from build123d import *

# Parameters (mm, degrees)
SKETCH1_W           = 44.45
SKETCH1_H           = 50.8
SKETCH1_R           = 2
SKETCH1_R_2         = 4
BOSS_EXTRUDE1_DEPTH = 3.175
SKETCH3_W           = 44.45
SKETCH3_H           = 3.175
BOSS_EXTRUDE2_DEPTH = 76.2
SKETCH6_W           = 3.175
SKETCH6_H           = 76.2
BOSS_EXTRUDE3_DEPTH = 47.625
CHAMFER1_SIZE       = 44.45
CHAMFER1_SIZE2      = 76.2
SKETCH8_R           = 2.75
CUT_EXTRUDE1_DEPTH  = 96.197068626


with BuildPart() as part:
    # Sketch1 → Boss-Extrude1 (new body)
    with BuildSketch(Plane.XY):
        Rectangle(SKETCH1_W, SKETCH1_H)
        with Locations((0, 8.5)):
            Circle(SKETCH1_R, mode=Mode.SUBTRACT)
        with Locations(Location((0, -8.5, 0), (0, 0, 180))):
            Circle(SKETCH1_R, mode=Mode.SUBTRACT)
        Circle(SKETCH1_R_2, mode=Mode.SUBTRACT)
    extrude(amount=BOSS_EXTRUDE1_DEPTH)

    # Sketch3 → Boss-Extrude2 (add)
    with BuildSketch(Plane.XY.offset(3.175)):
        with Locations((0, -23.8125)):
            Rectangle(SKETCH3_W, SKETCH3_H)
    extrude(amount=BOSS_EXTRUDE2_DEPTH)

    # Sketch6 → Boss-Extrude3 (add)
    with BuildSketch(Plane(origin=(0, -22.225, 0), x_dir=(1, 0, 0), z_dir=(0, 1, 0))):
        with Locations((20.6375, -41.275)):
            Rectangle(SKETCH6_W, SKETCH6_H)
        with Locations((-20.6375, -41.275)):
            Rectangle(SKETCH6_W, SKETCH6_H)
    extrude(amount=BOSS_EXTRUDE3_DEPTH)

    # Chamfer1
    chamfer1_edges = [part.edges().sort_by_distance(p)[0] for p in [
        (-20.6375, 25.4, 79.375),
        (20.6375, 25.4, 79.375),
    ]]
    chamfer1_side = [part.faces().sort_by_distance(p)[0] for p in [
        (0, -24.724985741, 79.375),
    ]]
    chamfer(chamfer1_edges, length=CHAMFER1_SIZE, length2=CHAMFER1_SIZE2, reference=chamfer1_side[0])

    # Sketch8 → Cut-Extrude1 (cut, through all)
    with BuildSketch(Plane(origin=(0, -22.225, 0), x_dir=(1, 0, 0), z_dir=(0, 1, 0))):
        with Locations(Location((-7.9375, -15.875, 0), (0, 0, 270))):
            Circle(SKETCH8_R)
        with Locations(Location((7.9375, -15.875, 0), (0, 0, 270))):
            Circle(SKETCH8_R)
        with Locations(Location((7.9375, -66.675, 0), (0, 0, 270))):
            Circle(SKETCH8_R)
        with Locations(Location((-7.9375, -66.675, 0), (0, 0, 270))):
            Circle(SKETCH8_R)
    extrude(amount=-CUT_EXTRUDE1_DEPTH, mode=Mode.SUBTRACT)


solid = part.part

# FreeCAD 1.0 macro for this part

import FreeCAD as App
import Part
import Sketcher

V = App.Vector
Q = App.Units.Quantity


def edges_at(feature, points):
    """Names of the edges that pass closest to the given points."""
    edges = feature.Shape.Edges
    near = lambda p: min(range(len(edges)), key=lambda i: edges[i].distToShape(Part.Vertex(*p))[0])
    return sorted({f"Edge{near(p) + 1}" for p in points})


def add_polygon(sketch, points):
    """Adds a closed chain of lines whose ends are joined by coincident constraints."""
    first, n = sketch.GeometryCount, len(points)
    for a, b in zip(points, points[1:] + points[:1]):
        sketch.addGeometry(Part.LineSegment(App.Vector(*a, 0), App.Vector(*b, 0)), False)
    for i in range(n):
        sketch.addConstraint(Sketcher.Constraint("Coincident", first + i, 2, first + (i + 1) % n, 1))

doc = App.newDocument("Part")
body = doc.addObject("PartDesign::Body", "Body")

# Sketch on XY plane
sketch1 = body.newObject("Sketcher::SketchObject", "Sketch")
sketch1.AttachmentSupport = (doc.getObject("XY_Plane"), [""])
sketch1.MapMode = "FlatFace"
add_polygon(sketch1, [(-22.2, 25.4), (-22.2, -25.4), (22.2, -25.4), (22.2, 25.4)])  # lines 0-3
sketch1.addGeometry(Part.Circle(V(0, -8.5, 0), V(0, 0, 1), 2), False)  # 4
sketch1.addGeometry(Part.Circle(V(0, 0, 0), V(0, 0, 1), 4), False)  # 5
sketch1.addGeometry(Part.Circle(V(0, 8.5, 0), V(0, 0, 1), 2), False)  # 6
sketch1.addConstraint([
    Sketcher.Constraint("Vertical", 0),
    Sketcher.Constraint("Horizontal", 1),
    Sketcher.Constraint("Vertical", 2),
    Sketcher.Constraint("Horizontal", 3),
    Sketcher.Constraint("Coincident", 5, 3, -1, 1),
    Sketcher.Constraint("Equal", 4, 6),
    Sketcher.Constraint("Symmetric", 4, 3, 6, 3, -1, 1),
    Sketcher.Constraint("Symmetric", 0, 2, 2, 2, -1, 1),
    Sketcher.Constraint("PointOnObject", 4, 3, -2),
    Sketcher.Constraint("DistanceY", 0, 2, 0, 1, Q("2 in")),
    Sketcher.Constraint("DistanceX", 1, 1, 1, 2, Q("1.75 in")),
    Sketcher.Constraint("Diameter", 4, Q("4 mm")),
    Sketcher.Constraint("Diameter", 5, Q("8 mm")),
    Sketcher.Constraint("DistanceY", 4, 3, -1, 1, Q("8.5 mm")),
])
pad1 = body.newObject("PartDesign::Pad", "Pad")
pad1.Profile = sketch1
pad1.Length = Q("0.125 in")

# Sketch on XY plane
sketch2 = body.newObject("Sketcher::SketchObject", "Sketch001")
sketch2.AttachmentSupport = (doc.getObject("XY_Plane"), [""])
sketch2.MapMode = "FlatFace"
sketch2.AttachmentOffset = App.Placement(V(0, 0, 0.125 * 25.4), App.Rotation())
add_polygon(sketch2, [(-22.2, -22.2), (-22.2, -25.4), (22.2, -25.4), (22.2, -22.2)])  # lines 0-3
sketch2.addConstraint([
    Sketcher.Constraint("Vertical", 0),
    Sketcher.Constraint("Horizontal", 1),
    Sketcher.Constraint("Vertical", 2),
    Sketcher.Constraint("Horizontal", 3),
    Sketcher.Constraint("DistanceY", 0, 2, -1, 1, Q("1 in")),
    Sketcher.Constraint("DistanceX", 1, 1, 1, 2, Q("1.75 in")),
    Sketcher.Constraint("DistanceY", 0, 2, 0, 1, Q("0.125 in")),
    Sketcher.Constraint("DistanceX", 0, 2, -1, 1, Q("0.875 in")),
])
pad2 = body.newObject("PartDesign::Pad", "Pad001")
pad2.Profile = sketch2
pad2.Length = Q("3 in")

# Sketch on XZ plane
sketch3 = body.newObject("Sketcher::SketchObject", "Sketch002")
sketch3.AttachmentSupport = (doc.getObject("XZ_Plane"), [""])
sketch3.MapMode = "FlatFace"
sketch3.AttachmentOffset = App.Placement(V(0, 0, 0.875 * 25.4), App.Rotation())
add_polygon(sketch3, [(19.1, 3.2), (19.1, 79.4), (22.2, 79.4), (22.2, 3.2)])  # lines 0-3
add_polygon(sketch3, [(-22.2, 3.2), (-22.2, 79.4), (-19.1, 79.4), (-19.1, 3.2)])  # lines 4-7
sketch3.addConstraint([
    Sketcher.Constraint("Vertical", 0),
    Sketcher.Constraint("Horizontal", 1),
    Sketcher.Constraint("Vertical", 2),
    Sketcher.Constraint("Horizontal", 3),
    Sketcher.Constraint("Vertical", 4),
    Sketcher.Constraint("Horizontal", 5),
    Sketcher.Constraint("Vertical", 6),
    Sketcher.Constraint("Horizontal", 7),
    Sketcher.Constraint("Symmetric", 1, 2, 4, 2, -2),
    Sketcher.Constraint("Symmetric", 3, 2, 6, 2, -2),
    Sketcher.Constraint("DistanceY", 0, 1, 0, 2, Q("3 in")),
    Sketcher.Constraint("DistanceX", 5, 2, 0, 2, Q("1.5 in")),
    Sketcher.Constraint("DistanceX", 1, 1, 1, 2, Q("0.125 in")),
    Sketcher.Constraint("DistanceY", -1, 1, 0, 2, Q("3.125 in")),
])
pad3 = body.newObject("PartDesign::Pad", "Pad002")
pad3.Profile = sketch3
pad3.Length = Q("1.875 in")
pad3.Reversed = True
doc.recompute()

chamfer = body.newObject("PartDesign::Chamfer", "Chamfer")
chamfer.Base = (pad3, edges_at(pad3, [(-20.637, 25.4, 79.375), (20.637, 25.4, 79.375)]))
chamfer.ChamferType = "Two distances"
chamfer.Size = Q("1.75 in")
chamfer.Size2 = Q("3 in")
chamfer.FlipDirection = True

# Sketch on XZ plane
sketch4 = body.newObject("Sketcher::SketchObject", "Sketch003")
sketch4.AttachmentSupport = (doc.getObject("XZ_Plane"), [""])
sketch4.MapMode = "FlatFace"
sketch4.AttachmentOffset = App.Placement(V(0, 0, 0.875 * 25.4), App.Rotation())
sketch4.addGeometry([
    Part.Circle(V(-7.9, 15.9, 0), V(0, 0, 1), 2.8),
    Part.Circle(V(7.9, 15.9, 0), V(0, 0, 1), 2.8),
    Part.Circle(V(7.9, 66.7, 0), V(0, 0, 1), 2.8),
    Part.Circle(V(-7.9, 66.7, 0), V(0, 0, 1), 2.8),
], False)
sketch4.addConstraint([
    Sketcher.Constraint("Equal", 0, 1),
    Sketcher.Constraint("Equal", 1, 2),
    Sketcher.Constraint("Equal", 2, 3),
    Sketcher.Constraint("Symmetric", 0, 3, 1, 3, -2),
    Sketcher.Constraint("Symmetric", 2, 3, 3, 3, -2),
    Sketcher.Constraint("Vertical", 1, 3, 2, 3),
    Sketcher.Constraint("DistanceY", 1, 3, 2, 3, Q("2 in")),
    Sketcher.Constraint("Diameter", 0, Q("5.5 mm")),
    Sketcher.Constraint("DistanceX", 0, 3, -1, 1, Q("0.3125 in")),
    Sketcher.Constraint("DistanceY", -1, 1, 0, 3, Q("0.625 in")),
])
pocket1 = body.newObject("PartDesign::Pocket", "Pocket")
pocket1.Profile = sketch4
pocket1.Type = "ThroughAll"
pocket1.Reversed = True

doc.recompute()
